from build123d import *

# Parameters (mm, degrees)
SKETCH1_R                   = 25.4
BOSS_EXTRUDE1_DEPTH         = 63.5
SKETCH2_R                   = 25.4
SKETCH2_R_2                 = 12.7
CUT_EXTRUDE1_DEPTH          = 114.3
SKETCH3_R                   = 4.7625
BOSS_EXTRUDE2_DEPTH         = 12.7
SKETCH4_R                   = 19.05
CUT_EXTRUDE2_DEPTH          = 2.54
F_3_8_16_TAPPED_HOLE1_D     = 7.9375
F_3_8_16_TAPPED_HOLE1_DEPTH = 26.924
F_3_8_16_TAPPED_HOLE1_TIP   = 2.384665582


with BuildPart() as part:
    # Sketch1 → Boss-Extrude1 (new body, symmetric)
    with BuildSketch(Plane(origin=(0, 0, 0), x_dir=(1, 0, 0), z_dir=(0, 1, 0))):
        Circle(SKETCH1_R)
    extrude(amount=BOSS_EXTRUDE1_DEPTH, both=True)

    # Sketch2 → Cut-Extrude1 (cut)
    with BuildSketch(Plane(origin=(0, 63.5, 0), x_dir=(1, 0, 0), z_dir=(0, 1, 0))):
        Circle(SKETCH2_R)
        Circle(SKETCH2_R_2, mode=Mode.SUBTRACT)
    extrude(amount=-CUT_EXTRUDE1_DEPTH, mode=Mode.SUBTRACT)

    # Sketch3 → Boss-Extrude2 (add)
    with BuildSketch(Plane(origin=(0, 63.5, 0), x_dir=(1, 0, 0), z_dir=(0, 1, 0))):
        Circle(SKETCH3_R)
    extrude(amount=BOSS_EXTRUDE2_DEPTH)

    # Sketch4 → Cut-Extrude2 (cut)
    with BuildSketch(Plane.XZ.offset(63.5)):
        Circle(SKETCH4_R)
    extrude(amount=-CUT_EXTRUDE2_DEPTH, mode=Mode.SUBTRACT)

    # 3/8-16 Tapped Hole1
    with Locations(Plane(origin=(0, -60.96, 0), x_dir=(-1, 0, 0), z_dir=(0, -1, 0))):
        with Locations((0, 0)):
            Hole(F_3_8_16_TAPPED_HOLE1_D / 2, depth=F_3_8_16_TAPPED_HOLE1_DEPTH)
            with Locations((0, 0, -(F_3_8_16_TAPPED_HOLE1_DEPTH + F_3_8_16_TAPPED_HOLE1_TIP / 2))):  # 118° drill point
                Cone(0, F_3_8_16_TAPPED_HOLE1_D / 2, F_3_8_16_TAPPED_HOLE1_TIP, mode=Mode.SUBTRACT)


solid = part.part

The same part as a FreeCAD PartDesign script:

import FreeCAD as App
import Part
import Sketcher
Q = App.Units.Quantity

doc = App.newDocument("Part")
body = doc.addObject("PartDesign::Body", "Body")

sketch1 = body.newObject("Sketcher::SketchObject", "Sketch")
sketch1.AttachmentSupport = (doc.getObject("XZ_Plane"), [""])
sketch1.MapMode = "FlatFace"
sketch1.addGeometry(Part.Circle(App.Vector(0, 0, 0), App.Vector(0, 0, 1), 25), False)
sketch1.addConstraint([
    Sketcher.Constraint("Coincident", 0, 3, -1, 1),
    Sketcher.Constraint("Diameter", 0, Q("2 in")),
])
pad1 = body.newObject("PartDesign::Pad", "Pad")
pad1.Profile = sketch1
pad1.Length = Q("5 in")
pad1.Midplane = True

sketch2 = body.newObject("Sketcher::SketchObject", "Sketch001")
sketch2.AttachmentSupport = (doc.getObject("XZ_Plane"), [""])
sketch2.MapMode = "FlatFace"
sketch2.AttachmentOffset = App.Placement(App.Vector(0, 0, -2.5 * 25.4), App.Rotation())
sketch2.addGeometry([
    Part.Circle(App.Vector(0, 0, 0), App.Vector(0, 0, 1), 25),
    Part.Circle(App.Vector(0, 0, 0), App.Vector(0, 0, 1), 13),
], False)
sketch2.addConstraint([
    Sketcher.Constraint("Coincident", 0, 3, -1, 1),
    Sketcher.Constraint("Coincident", 1, 3, -1, 1),
    Sketcher.Constraint("Diameter", 0, Q("2 in")),
    Sketcher.Constraint("Diameter", 1, Q("1 in")),
])
pocket1 = body.newObject("PartDesign::Pocket", "Pocket")
pocket1.Profile = sketch2
pocket1.Length = Q("4.5 in")
pocket1.Reversed = True

sketch3 = body.newObject("Sketcher::SketchObject", "Sketch002")
sketch3.AttachmentSupport = (doc.getObject("XZ_Plane"), [""])
sketch3.MapMode = "FlatFace"
sketch3.AttachmentOffset = App.Placement(App.Vector(0, 0, -2.5 * 25.4), App.Rotation())
sketch3.addGeometry(Part.Circle(App.Vector(0, 0, 0), App.Vector(0, 0, 1), 4.8), False)
sketch3.addConstraint([
    Sketcher.Constraint("Coincident", 0, 3, -1, 1),
    Sketcher.Constraint("Diameter", 0, Q("0.375 in")),
])
pad2 = body.newObject("PartDesign::Pad", "Pad001")
pad2.Profile = sketch3
pad2.Length = Q("0.5 in")
pad2.Reversed = True

sketch4 = body.newObject("Sketcher::SketchObject", "Sketch003")
sketch4.AttachmentSupport = (doc.getObject("XZ_Plane"), [""])
sketch4.MapMode = "FlatFace"
sketch4.AttachmentOffset = App.Placement(App.Vector(0, 0, 2.5 * 25.4), App.Rotation())
sketch4.addGeometry(Part.Circle(App.Vector(0, 0, 0), App.Vector(0, 0, 1), 19), False)
sketch4.addConstraint([
    Sketcher.Constraint("Coincident", 0, 3, -1, 1),
    Sketcher.Constraint("Diameter", 0, Q("1.5 in")),
])
pocket2 = body.newObject("PartDesign::Pocket", "Pocket001")
pocket2.Profile = sketch4
pocket2.Length = Q("0.1 in")

sketch5 = body.newObject("Sketcher::SketchObject", "Sketch004")
sketch5.AttachmentSupport = (doc.getObject("XZ_Plane"), [""])
sketch5.MapMode = "FlatFace"
sketch5.AttachmentOffset = App.Placement(App.Vector(0, 0, 2.4 * 25.4), App.Rotation())
sketch5.addGeometry(Part.Circle(App.Vector(0, 0, 0), App.Vector(0, 0, 1), 4), False)
sketch5.addConstraint([
    Sketcher.Constraint("Coincident", 0, 3, -1, 1),
    Sketcher.Constraint("Diameter", 0, Q("0.3125 in")),
])
doc.recompute()
hole = body.newObject("PartDesign::Hole", "Hole")
hole.Profile = sketch5
hole.ThreadType = "None"
hole.Diameter = Q("0.3125 in")
hole.DepthType = "Dimension"
hole.Depth = Q("1.06 in")
hole.DrillPoint = "Angled"
hole.DrillPointAngle = 118

doc.recompute()
